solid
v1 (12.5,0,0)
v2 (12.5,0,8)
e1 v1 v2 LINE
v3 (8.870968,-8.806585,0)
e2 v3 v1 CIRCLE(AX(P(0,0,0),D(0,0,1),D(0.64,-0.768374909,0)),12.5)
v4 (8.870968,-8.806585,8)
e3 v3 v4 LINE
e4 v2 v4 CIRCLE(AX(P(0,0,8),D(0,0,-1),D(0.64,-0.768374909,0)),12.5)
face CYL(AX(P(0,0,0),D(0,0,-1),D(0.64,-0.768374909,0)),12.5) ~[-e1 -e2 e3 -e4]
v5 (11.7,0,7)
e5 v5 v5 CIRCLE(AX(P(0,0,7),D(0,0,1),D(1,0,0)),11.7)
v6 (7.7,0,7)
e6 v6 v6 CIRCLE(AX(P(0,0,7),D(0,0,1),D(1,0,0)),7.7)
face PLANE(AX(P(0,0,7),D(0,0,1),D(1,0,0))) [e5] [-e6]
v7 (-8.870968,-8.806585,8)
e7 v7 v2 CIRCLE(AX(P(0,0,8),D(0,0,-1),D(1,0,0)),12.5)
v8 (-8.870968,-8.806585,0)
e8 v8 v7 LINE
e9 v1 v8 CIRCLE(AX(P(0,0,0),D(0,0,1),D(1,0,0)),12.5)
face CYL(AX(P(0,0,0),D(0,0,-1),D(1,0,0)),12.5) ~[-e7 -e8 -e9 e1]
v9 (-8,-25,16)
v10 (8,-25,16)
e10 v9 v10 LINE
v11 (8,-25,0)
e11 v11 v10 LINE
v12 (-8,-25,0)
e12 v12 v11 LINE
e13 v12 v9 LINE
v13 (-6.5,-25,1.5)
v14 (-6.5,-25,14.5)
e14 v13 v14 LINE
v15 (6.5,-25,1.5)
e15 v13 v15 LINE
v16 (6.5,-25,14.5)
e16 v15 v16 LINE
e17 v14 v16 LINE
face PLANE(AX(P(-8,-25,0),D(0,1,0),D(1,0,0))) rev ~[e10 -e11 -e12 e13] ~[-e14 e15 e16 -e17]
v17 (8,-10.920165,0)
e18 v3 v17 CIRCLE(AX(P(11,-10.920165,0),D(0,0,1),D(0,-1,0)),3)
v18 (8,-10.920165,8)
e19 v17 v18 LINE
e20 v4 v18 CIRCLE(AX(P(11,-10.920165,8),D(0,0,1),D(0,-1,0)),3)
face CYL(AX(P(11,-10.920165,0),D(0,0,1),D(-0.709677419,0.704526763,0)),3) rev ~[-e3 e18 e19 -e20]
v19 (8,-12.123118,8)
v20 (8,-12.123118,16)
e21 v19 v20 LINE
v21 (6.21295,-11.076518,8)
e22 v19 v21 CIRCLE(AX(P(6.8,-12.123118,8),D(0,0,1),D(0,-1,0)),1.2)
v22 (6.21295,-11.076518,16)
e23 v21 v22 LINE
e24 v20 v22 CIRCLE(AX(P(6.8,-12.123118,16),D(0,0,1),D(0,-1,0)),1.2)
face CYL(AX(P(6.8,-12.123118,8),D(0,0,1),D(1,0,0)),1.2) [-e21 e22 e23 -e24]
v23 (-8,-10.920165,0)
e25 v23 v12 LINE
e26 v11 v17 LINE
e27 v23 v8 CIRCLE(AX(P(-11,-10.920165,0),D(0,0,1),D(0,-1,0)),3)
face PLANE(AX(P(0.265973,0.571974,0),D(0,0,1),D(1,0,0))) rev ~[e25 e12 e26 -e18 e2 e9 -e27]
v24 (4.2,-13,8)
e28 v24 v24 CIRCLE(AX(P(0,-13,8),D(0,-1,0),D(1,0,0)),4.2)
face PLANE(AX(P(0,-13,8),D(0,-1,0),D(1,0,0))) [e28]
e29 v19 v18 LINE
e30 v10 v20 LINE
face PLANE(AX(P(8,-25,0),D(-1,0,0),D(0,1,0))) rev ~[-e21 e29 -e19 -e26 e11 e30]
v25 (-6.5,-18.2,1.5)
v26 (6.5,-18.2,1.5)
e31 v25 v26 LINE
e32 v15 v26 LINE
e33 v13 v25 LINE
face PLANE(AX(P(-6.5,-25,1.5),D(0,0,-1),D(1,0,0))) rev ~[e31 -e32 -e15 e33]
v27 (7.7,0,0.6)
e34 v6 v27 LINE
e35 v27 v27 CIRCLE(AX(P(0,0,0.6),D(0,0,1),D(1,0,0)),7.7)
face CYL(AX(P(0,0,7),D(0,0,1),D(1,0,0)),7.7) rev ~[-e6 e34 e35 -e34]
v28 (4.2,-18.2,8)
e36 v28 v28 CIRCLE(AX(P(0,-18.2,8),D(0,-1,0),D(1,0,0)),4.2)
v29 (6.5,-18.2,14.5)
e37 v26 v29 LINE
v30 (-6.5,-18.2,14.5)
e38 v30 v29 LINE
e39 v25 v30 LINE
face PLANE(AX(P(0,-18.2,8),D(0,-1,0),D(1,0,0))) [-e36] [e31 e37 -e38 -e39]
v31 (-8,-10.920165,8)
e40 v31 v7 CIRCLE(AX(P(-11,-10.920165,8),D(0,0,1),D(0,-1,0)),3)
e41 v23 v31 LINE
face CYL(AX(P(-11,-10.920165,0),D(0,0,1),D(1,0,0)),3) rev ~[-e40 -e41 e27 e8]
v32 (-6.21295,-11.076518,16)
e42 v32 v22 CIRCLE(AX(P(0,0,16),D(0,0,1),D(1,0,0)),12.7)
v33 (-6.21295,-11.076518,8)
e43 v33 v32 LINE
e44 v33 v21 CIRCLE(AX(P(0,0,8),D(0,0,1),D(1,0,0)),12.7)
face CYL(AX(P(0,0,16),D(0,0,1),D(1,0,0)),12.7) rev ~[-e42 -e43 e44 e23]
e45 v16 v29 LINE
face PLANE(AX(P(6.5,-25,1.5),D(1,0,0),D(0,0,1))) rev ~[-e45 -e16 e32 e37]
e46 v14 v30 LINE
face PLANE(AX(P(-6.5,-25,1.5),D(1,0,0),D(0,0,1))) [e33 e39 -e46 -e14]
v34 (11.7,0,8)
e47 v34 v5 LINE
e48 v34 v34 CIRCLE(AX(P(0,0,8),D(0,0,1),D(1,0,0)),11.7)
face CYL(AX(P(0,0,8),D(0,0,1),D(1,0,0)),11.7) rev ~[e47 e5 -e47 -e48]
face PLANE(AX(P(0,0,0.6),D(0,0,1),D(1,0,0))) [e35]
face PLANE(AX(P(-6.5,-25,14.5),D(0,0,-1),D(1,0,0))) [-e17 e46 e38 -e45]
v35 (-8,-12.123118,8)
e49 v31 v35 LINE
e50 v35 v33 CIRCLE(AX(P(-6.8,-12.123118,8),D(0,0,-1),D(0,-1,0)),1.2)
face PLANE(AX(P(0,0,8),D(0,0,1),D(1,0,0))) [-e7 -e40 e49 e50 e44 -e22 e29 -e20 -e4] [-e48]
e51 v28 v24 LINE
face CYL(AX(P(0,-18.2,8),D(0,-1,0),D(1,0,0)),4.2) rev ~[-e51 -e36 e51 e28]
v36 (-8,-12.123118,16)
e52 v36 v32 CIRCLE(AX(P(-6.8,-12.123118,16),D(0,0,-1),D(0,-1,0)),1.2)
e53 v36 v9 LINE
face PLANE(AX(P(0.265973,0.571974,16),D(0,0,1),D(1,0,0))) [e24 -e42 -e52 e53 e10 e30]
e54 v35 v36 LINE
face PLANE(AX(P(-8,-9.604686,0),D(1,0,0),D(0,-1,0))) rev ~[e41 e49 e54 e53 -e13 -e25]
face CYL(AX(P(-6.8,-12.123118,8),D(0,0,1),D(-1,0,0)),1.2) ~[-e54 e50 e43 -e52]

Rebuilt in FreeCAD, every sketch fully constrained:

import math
import FreeCAD as App
import Part
import Sketcher

V = App.Vector
Q = App.Units.Quantity


def edges_at(feature, points):
    """Names of the edges that pass closest to the given points."""
    edges = feature.Shape.Edges
    near = lambda p: min(range(len(edges)), key=lambda i: edges[i].distToShape(Part.Vertex(*p))[0])
    return sorted({f"Edge{near(p) + 1}" for p in points})

doc = App.newDocument("Part")
params = doc.addObject("Spreadsheet::Sheet", "Params")
for row, (alias, value) in enumerate([
    ("sketch1_radius", "12.5 mm"),
    ("sketch1_width", "16 mm"),
    ("pad1_length", "16 mm"),
    ("sketch2_diameter", "25.4 mm"),
    ("pocket1_length", "8 mm"),
    ("fillet_radius", "1.2 mm"),
    ("fillet2_radius", "3 mm"),
    ("sketch3_diameter", "23.4 mm"),
    ("pocket2_length", "1 mm"),
    ("sketch4_diameter", "15.4 mm"),
    ("pocket3_length", "6.4 mm"),
    ("sketch5_width", "13 mm"),
    ("pocket4_length", "6.8 mm"),
    ("sketch6_diameter", "8.4 mm"),
    ("pocket5_length", "5.2 mm"),
], start=1):
    params.set(f"A{row}", alias)
    params.set(f"B{row}", "=" + value)
    params.setAlias(f"B{row}", alias)

body = doc.addObject("PartDesign::Body", "Body")

# Sketch on XY plane
sketch1 = doc.addObject("Sketcher::SketchObject", "Sketch")
body.addObject(sketch1)
sketch1.AttachmentSupport = (doc.XY_Plane, [""])
sketch1.MapMode = "FlatFace"
sketch1.addGeometry([
    Part.ArcOfCircle(Part.Circle(V(0, 0, 0), V(0, 0, 1), 12), math.radians(-50), math.radians(0)),  # 0
    Part.ArcOfCircle(Part.Circle(V(0, 0, 0), V(0, 0, 1), 12), math.radians(0), math.radians(230)),  # 1
    Part.LineSegment(V(-8, -10, 0), V(-8, -25, 0)),  # 2
    Part.LineSegment(V(-8, -25, 0), V(8, -25, 0)),  # 3
    Part.LineSegment(V(8, -25, 0), V(8, -10, 0)),  # 4
], False)
sketch1.addConstraint([
    Sketcher.Constraint("Tangent", 0, 2, 1, 1),
    Sketcher.Constraint("Coincident", 1, 2, 2, 1),
    Sketcher.Constraint("Coincident", 2, 2, 3, 1),
    Sketcher.Constraint("Coincident", 3, 2, 4, 1),
    Sketcher.Constraint("Coincident", 4, 2, 0, 1),
    Sketcher.Constraint("Vertical", 2),
    Sketcher.Constraint("Horizontal", 3),
    Sketcher.Constraint("Vertical", 4),
    Sketcher.Constraint("Coincident", 0, 3, -1, 1),
    Sketcher.Constraint("Equal", 0, 1),
    Sketcher.Constraint("PointOnObject", 0, 2, -1),
    Sketcher.Constraint("Horizontal", 1, 2, 4, 2),
    Sketcher.Constraint("Radius", 0, Q("12.5 mm")),
    Sketcher.Constraint("DistanceX", 3, 1, 3, 2, Q("16 mm")),
    Sketcher.Constraint("DistanceY", 2, 2, -1, 1, Q("25 mm")),
])
sketch1.setExpression("Constraints[12]", "Params.sketch1_radius")
sketch1.setExpression("Constraints[13]", "Params.sketch1_width")
pad1 = doc.addObject("PartDesign::Pad", "Pad")
body.addObject(pad1)
pad1.Profile = sketch1
pad1.setExpression("Length", "Params.pad1_length")

# Sketch on XY plane
sketch2 = doc.addObject("Sketcher::SketchObject", "Sketch001")
body.addObject(sketch2)
sketch2.AttachmentSupport = (doc.XY_Plane, [""])
sketch2.MapMode = "FlatFace"
sketch2.AttachmentOffset = App.Placement(V(0, 0, 16), App.Rotation())
sketch2.addGeometry(Part.Circle(V(0, 0, 0), V(0, 0, 1), 13), False)
sketch2.addConstraint([
    Sketcher.Constraint("Coincident", 0, 3, -1, 1),
    Sketcher.Constraint("Diameter", 0, Q("25.4 mm")),
])
sketch2.setExpression("Constraints[1]", "Params.sketch2_diameter")
pocket1 = doc.addObject("PartDesign::Pocket", "Pocket")
body.addObject(pocket1)
pocket1.Profile = sketch2
pocket1.setExpression("Length", "Params.pocket1_length")
doc.recompute()

fillet = doc.addObject("PartDesign::Fillet", "Fillet")
body.addObject(fillet)
fillet.Base = (pocket1, edges_at(pocket1, [(-8, -9.864, 12), (8, -9.864, 12)]))
fillet.setExpression("Radius", "Params.fillet_radius")
doc.recompute()

fillet2 = doc.addObject("PartDesign::Fillet", "Fillet001")
body.addObject(fillet2)
fillet2.Base = (fillet, edges_at(fillet, [(8, -9.605, 4), (-8, -9.605, 4)]))
fillet2.setExpression("Radius", "Params.fillet2_radius")

# Sketch on XY plane
sketch3 = doc.addObject("Sketcher::SketchObject", "Sketch002")
body.addObject(sketch3)
sketch3.AttachmentSupport = (doc.XY_Plane, [""])
sketch3.MapMode = "FlatFace"
sketch3.AttachmentOffset = App.Placement(V(0, 0, 8), App.Rotation())
sketch3.addGeometry(Part.Circle(V(0, 0, 0), V(0, 0, 1), 12), False)
sketch3.addConstraint([
    Sketcher.Constraint("Coincident", 0, 3, -1, 1),
    Sketcher.Constraint("Diameter", 0, Q("23.4 mm")),
])
sketch3.setExpression("Constraints[1]", "Params.sketch3_diameter")
pocket2 = doc.addObject("PartDesign::Pocket", "Pocket001")
body.addObject(pocket2)
pocket2.Profile = sketch3
pocket2.setExpression("Length", "Params.pocket2_length")

# Sketch on XY plane
sketch4 = doc.addObject("Sketcher::SketchObject", "Sketch003")
body.addObject(sketch4)
sketch4.AttachmentSupport = (doc.XY_Plane, [""])
sketch4.MapMode = "FlatFace"
sketch4.AttachmentOffset = App.Placement(V(0, 0, 7), App.Rotation())
sketch4.addGeometry(Part.Circle(V(0, 0, 0), V(0, 0, 1), 8), False)
sketch4.addConstraint([
    Sketcher.Constraint("Coincident", 0, 3, -1, 1),
    Sketcher.Constraint("Diameter", 0, Q("15.4 mm")),
])
sketch4.setExpression("Constraints[1]", "Params.sketch4_diameter")
pocket3 = doc.addObject("PartDesign::Pocket", "Pocket002")
body.addObject(pocket3)
pocket3.Profile = sketch4
pocket3.setExpression("Length", "Params.pocket3_length")

# Sketch on XZ plane
sketch5 = doc.addObject("Sketcher::SketchObject", "Sketch004")
body.addObject(sketch5)
sketch5.AttachmentSupport = (doc.XZ_Plane, [""])
sketch5.MapMode = "FlatFace"
sketch5.AttachmentOffset = App.Placement(V(0, 0, 25), App.Rotation())
sketch5.addGeometry([
    Part.LineSegment(V(-6, 14, 0), V(-6, 2, 0)),
    Part.LineSegment(V(-6, 2, 0), V(6, 2, 0)),
    Part.LineSegment(V(6, 2, 0), V(6, 14, 0)),
    Part.LineSegment(V(6, 14, 0), V(-6, 14, 0)),
], False)
sketch5.addConstraint([
    Sketcher.Constraint("Coincident", 0, 2, 1, 1),
    Sketcher.Constraint("Coincident", 1, 2, 2, 1),
    Sketcher.Constraint("Coincident", 2, 2, 3, 1),
    Sketcher.Constraint("Coincident", 3, 2, 0, 1),
    Sketcher.Constraint("Vertical", 0),
    Sketcher.Constraint("Horizontal", 1),
    Sketcher.Constraint("Vertical", 2),
    Sketcher.Constraint("Horizontal", 3),
    Sketcher.Constraint("Equal", 3, 0),
    Sketcher.Constraint("DistanceX", 1, 1, 1, 2, Q("13 mm")),
    Sketcher.Constraint("DistanceX", 0, 2, -1, 1, Q("6.5 mm")),
    Sketcher.Constraint("DistanceY", -1, 1, 0, 2, Q("1.5 mm")),
])
sketch5.setExpression("Constraints[9]", "Params.sketch5_width")
pocket4 = doc.addObject("PartDesign::Pocket", "Pocket003")
body.addObject(pocket4)
pocket4.Profile = sketch5
pocket4.setExpression("Length", "Params.pocket4_length")

# Sketch on XZ plane
sketch6 = doc.addObject("Sketcher::SketchObject", "Sketch005")
body.addObject(sketch6)
sketch6.AttachmentSupport = (doc.XZ_Plane, [""])
sketch6.MapMode = "FlatFace"
sketch6.AttachmentOffset = App.Placement(V(0, 0, 18.2), App.Rotation())
sketch6.addGeometry(Part.Circle(V(0, 8, 0), V(0, 0, 1), 4.2), False)
sketch6.addConstraint([
    Sketcher.Constraint("PointOnObject", 0, 3, -2),
    Sketcher.Constraint("Diameter", 0, Q("8.4 mm")),
    Sketcher.Constraint("DistanceY", -1, 1, 0, 3, Q("8 mm")),
])
sketch6.setExpression("Constraints[1]", "Params.sketch6_diameter")
pocket5 = doc.addObject("PartDesign::Pocket", "Pocket004")
body.addObject(pocket5)
pocket5.Profile = sketch6
pocket5.setExpression("Length", "Params.pocket5_length")

doc.recompute()
